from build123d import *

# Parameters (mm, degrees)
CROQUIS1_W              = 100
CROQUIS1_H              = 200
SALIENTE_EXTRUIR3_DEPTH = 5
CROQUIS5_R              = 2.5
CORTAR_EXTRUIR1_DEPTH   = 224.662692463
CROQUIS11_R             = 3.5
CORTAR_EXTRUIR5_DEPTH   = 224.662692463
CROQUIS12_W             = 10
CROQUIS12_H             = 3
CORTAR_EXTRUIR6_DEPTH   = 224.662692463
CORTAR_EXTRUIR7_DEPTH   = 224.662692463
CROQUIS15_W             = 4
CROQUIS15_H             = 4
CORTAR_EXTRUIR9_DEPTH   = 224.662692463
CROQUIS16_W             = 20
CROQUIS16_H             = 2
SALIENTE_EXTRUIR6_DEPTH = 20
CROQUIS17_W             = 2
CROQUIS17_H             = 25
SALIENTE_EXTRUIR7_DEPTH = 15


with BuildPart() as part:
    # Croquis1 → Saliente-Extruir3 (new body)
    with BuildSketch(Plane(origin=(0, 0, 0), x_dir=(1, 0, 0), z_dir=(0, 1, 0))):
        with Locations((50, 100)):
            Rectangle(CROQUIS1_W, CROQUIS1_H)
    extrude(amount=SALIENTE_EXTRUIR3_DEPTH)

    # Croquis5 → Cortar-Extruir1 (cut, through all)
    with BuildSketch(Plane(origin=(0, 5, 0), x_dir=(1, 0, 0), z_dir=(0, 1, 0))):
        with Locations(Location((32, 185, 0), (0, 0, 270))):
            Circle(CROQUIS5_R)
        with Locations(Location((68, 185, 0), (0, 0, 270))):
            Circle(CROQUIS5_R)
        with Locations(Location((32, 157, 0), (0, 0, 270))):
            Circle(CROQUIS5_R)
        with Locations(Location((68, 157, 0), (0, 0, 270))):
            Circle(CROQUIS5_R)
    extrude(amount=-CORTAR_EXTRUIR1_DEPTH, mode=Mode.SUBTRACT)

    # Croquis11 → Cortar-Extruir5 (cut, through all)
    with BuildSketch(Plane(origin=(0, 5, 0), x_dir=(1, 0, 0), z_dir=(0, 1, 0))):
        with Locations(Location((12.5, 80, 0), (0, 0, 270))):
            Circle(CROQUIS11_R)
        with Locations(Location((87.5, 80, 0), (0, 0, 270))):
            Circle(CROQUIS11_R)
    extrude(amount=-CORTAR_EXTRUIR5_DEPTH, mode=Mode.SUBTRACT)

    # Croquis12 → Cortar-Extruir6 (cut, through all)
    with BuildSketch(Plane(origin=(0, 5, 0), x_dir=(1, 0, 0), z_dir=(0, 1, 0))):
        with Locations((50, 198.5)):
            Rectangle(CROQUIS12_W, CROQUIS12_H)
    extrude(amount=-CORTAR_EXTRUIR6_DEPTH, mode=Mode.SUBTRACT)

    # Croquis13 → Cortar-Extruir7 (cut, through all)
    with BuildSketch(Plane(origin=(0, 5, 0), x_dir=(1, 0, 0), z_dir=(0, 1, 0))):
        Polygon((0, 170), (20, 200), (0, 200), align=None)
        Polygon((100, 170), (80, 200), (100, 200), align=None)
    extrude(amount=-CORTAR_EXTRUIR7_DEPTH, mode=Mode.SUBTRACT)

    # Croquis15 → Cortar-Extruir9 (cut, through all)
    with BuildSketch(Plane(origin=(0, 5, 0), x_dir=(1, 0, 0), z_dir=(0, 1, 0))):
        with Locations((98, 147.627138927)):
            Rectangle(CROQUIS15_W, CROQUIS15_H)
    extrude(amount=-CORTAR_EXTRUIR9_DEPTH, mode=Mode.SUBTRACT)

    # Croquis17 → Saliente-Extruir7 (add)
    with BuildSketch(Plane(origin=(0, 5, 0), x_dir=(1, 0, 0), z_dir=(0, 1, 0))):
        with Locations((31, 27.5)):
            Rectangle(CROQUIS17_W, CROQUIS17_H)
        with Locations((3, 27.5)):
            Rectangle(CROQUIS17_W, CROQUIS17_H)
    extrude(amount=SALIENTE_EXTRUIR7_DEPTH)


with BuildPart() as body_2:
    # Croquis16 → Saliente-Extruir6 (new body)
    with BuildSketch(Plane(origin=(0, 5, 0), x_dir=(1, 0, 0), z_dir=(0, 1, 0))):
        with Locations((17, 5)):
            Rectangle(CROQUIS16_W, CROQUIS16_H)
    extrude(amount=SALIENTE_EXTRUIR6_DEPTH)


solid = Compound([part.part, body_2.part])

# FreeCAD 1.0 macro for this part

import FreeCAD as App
import Part
import Sketcher

V = App.Vector
Q = App.Units.Quantity


def add_polygon(sketch, points):
    """Adds a closed chain of lines whose ends are joined by coincident constraints."""
    first, n = sketch.GeometryCount, len(points)
    for a, b in zip(points, points[1:] + points[:1]):
        sketch.addGeometry(Part.LineSegment(App.Vector(*a, 0), App.Vector(*b, 0)), False)
    for i in range(n):
        sketch.addConstraint(Sketcher.Constraint("Coincident", first + i, 2, first + (i + 1) % n, 1))

doc = App.newDocument("Part")
body = doc.addObject("PartDesign::Body", "Body")

# Sketch on XZ plane
sketch1 = body.newObject("Sketcher::SketchObject", "Sketch")
sketch1.AttachmentSupport = (doc.getObject("XZ_Plane"), [""])
sketch1.MapMode = "FlatFace"
add_polygon(sketch1, [(0, -200), (0, 0), (100, 0), (100, -200)])  # lines 0-3
sketch1.addConstraint(Sketcher.Constraint("Vertical", 0))
sketch1.addConstraint(Sketcher.Constraint("Horizontal", 1))
sketch1.addConstraint(Sketcher.Constraint("Vertical", 2))
sketch1.addConstraint(Sketcher.Constraint("Horizontal", 3))
sketch1.addConstraint(Sketcher.Constraint("Coincident", 0, 2, -1, 1))
sketch1.addConstraint(Sketcher.Constraint("DistanceX", 1, 1, 1, 2, Q("100 mm")))
sketch1.addConstraint(Sketcher.Constraint("DistanceY", 0, 1, 0, 2, Q("200 mm")))
pad1 = body.newObject("PartDesign::Pad", "Pad")
pad1.Profile = sketch1
pad1.Length = 5
pad1.Reversed = True

# Sketch on XZ plane
sketch2 = body.newObject("Sketcher::SketchObject", "Sketch001")
sketch2.AttachmentSupport = (doc.getObject("XZ_Plane"), [""])
sketch2.MapMode = "FlatFace"
sketch2.AttachmentOffset = App.Placement(V(0, 0, -5), App.Rotation())
sketch2.addGeometry(Part.Circle(V(32, -185, 0), V(0, 0, 1), 2.5), False)
sketch2.addGeometry(Part.Circle(V(68, -185, 0), V(0, 0, 1), 2.5), False)
sketch2.addGeometry(Part.Circle(V(32, -157, 0), V(0, 0, 1), 2.5), False)
sketch2.addGeometry(Part.Circle(V(68, -157, 0), V(0, 0, 1), 2.5), False)
sketch2.addConstraint(Sketcher.Constraint("Equal", 0, 1))
sketch2.addConstraint(Sketcher.Constraint("Equal", 1, 2))
sketch2.addConstraint(Sketcher.Constraint("Equal", 2, 3))
sketch2.addConstraint(Sketcher.Constraint("Horizontal", 0, 3, 1, 3))
sketch2.addConstraint(Sketcher.Constraint("Horizontal", 2, 3, 3, 3))
sketch2.addConstraint(Sketcher.Constraint("Vertical", 0, 3, 2, 3))
sketch2.addConstraint(Sketcher.Constraint("Vertical", 1, 3, 3, 3))
sketch2.addConstraint(Sketcher.Constraint("Diameter", 0, Q("5 mm")))
sketch2.addConstraint(Sketcher.Constraint("DistanceX", -1, 1, 0, 3, Q("32 mm")))
sketch2.addConstraint(Sketcher.Constraint("DistanceY", 0, 3, -1, 1, Q("185 mm")))
sketch2.addConstraint(Sketcher.Constraint("DistanceX", -1, 1, 1, 3, Q("68 mm")))
sketch2.addConstraint(Sketcher.Constraint("DistanceY", 2, 3, -1, 1, Q("157 mm")))
pocket1 = body.newObject("PartDesign::Pocket", "Pocket")
pocket1.Profile = sketch2
pocket1.Type = "ThroughAll"
pocket1.Reversed = True

# Sketch on XZ plane
sketch3 = body.newObject("Sketcher::SketchObject", "Sketch002")
sketch3.AttachmentSupport = (doc.getObject("XZ_Plane"), [""])
sketch3.MapMode = "FlatFace"
sketch3.AttachmentOffset = App.Placement(V(0, 0, -5), App.Rotation())
sketch3.addGeometry(Part.Circle(V(12.5, -80, 0), V(0, 0, 1), 3.5), False)
sketch3.addGeometry(Part.Circle(V(87.5, -80, 0), V(0, 0, 1), 3.5), False)
sketch3.addConstraint(Sketcher.Constraint("Equal", 0, 1))
sketch3.addConstraint(Sketcher.Constraint("Horizontal", 0, 3, 1, 3))
sketch3.addConstraint(Sketcher.Constraint("Diameter", 0, Q("7 mm")))
sketch3.addConstraint(Sketcher.Constraint("DistanceY", 0, 3, -1, 1, Q("80 mm")))
sketch3.addConstraint(Sketcher.Constraint("DistanceX", 0, 3, 1, 3, Q("75 mm")))
sketch3.addConstraint(Sketcher.Constraint("DistanceX", -1, 1, 0, 3, Q("12.5 mm")))
pocket2 = body.newObject("PartDesign::Pocket", "Pocket001")
pocket2.Profile = sketch3
pocket2.Type = "ThroughAll"
pocket2.Reversed = True

# Sketch on XZ plane
sketch4 = body.newObject("Sketcher::SketchObject", "Sketch003")
sketch4.AttachmentSupport = (doc.getObject("XZ_Plane"), [""])
sketch4.MapMode = "FlatFace"
sketch4.AttachmentOffset = App.Placement(V(0, 0, -5), App.Rotation())
add_polygon(sketch4, [(45, -200), (45, -197), (55, -197), (55, -200)])  # lines 0-3
sketch4.addConstraint(Sketcher.Constraint("Vertical", 0))
sketch4.addConstraint(Sketcher.Constraint("Horizontal", 1))
sketch4.addConstraint(Sketcher.Constraint("Vertical", 2))
sketch4.addConstraint(Sketcher.Constraint("Horizontal", 3))
sketch4.addConstraint(Sketcher.Constraint("DistanceX", 1, 1, 1, 2, Q("10 mm")))
sketch4.addConstraint(Sketcher.Constraint("DistanceY", 0, 1, 0, 2, Q("3 mm")))
sketch4.addConstraint(Sketcher.Constraint("DistanceX", -1, 1, 0, 2, Q("45 mm")))
sketch4.addConstraint(Sketcher.Constraint("DistanceY", 0, 2, -1, 1, Q("197 mm")))
pocket3 = body.newObject("PartDesign::Pocket", "Pocket002")
pocket3.Profile = sketch4
pocket3.Type = "ThroughAll"
pocket3.Reversed = True

# Sketch on XZ plane
sketch5 = body.newObject("Sketcher::SketchObject", "Sketch004")
sketch5.AttachmentSupport = (doc.getObject("XZ_Plane"), [""])
sketch5.MapMode = "FlatFace"
sketch5.AttachmentOffset = App.Placement(V(0, 0, -5), App.Rotation())
add_polygon(sketch5, [(0, -170), (20, -200), (0, -200)])  # lines 0-2
add_polygon(sketch5, [(80, -200), (100, -170), (100, -200)])  # lines 3-5
sketch5.addConstraint(Sketcher.Constraint("Horizontal", 1))
sketch5.addConstraint(Sketcher.Constraint("Vertical", 2))
sketch5.addConstraint(Sketcher.Constraint("Vertical", 4))
sketch5.addConstraint(Sketcher.Constraint("Horizontal", 5))
sketch5.addConstraint(Sketcher.Constraint("PointOnObject", 1, 2, -2))
sketch5.addConstraint(Sketcher.Constraint("Horizontal", 2, 2, 3, 2))
sketch5.addConstraint(Sketcher.Constraint("Horizontal", 1, 2, 4, 2))
sketch5.addConstraint(Sketcher.Constraint("Equal", 1, 5))
sketch5.addConstraint(Sketcher.Constraint("DistanceX", 1, 2, 1, 1, Q("20 mm")))
sketch5.addConstraint(Sketcher.Constraint("DistanceY", 2, 1, 2, 2, Q("30 mm")))
sketch5.addConstraint(Sketcher.Constraint("DistanceY", 0, 2, -1, 1, Q("200 mm")))
sketch5.addConstraint(Sketcher.Constraint("DistanceX", -1, 1, 3, 2, Q("100 mm")))
pocket4 = body.newObject("PartDesign::Pocket", "Pocket003")
pocket4.Profile = sketch5
pocket4.Type = "ThroughAll"
pocket4.Reversed = True

# Sketch on XZ plane
sketch6 = body.newObject("Sketcher::SketchObject", "Sketch005")
sketch6.AttachmentSupport = (doc.getObject("XZ_Plane"), [""])
sketch6.MapMode = "FlatFace"
sketch6.AttachmentOffset = App.Placement(V(0, 0, -5), App.Rotation())
add_polygon(sketch6, [(96, -149.627139), (96, -145.627139), (100, -145.627139), (100, -149.627139)])  # lines 0-3
sketch6.addConstraint(Sketcher.Constraint("Vertical", 0))
sketch6.addConstraint(Sketcher.Constraint("Horizontal", 1))
sketch6.addConstraint(Sketcher.Constraint("Vertical", 2))
sketch6.addConstraint(Sketcher.Constraint("Horizontal", 3))
sketch6.addConstraint(Sketcher.Constraint("Equal", 3, 0))
sketch6.addConstraint(Sketcher.Constraint("DistanceX", 1, 1, 1, 2, Q("4 mm")))
sketch6.addConstraint(Sketcher.Constraint("DistanceX", -1, 1, 0, 2, Q("96 mm")))
sketch6.addConstraint(Sketcher.Constraint("DistanceY", 0, 2, -1, 1, Q("145.627139 mm")))
pocket5 = body.newObject("PartDesign::Pocket", "Pocket004")
pocket5.Profile = sketch6
pocket5.Type = "ThroughAll"
pocket5.Reversed = True

# Sketch on XZ plane
sketch7 = body.newObject("Sketcher::SketchObject", "Sketch006")
sketch7.AttachmentSupport = (doc.getObject("XZ_Plane"), [""])
sketch7.MapMode = "FlatFace"
sketch7.AttachmentOffset = App.Placement(V(0, 0, -5), App.Rotation())
add_polygon(sketch7, [(30, -40), (30, -15), (32, -15), (32, -40)])  # lines 0-3
add_polygon(sketch7, [(2, -40), (2, -15), (4, -15), (4, -40)])  # lines 4-7
sketch7.addConstraint(Sketcher.Constraint("Vertical", 0))
sketch7.addConstraint(Sketcher.Constraint("Horizontal", 1))
sketch7.addConstraint(Sketcher.Constraint("Vertical", 2))
sketch7.addConstraint(Sketcher.Constraint("Horizontal", 3))
sketch7.addConstraint(Sketcher.Constraint("Vertical", 4))
sketch7.addConstraint(Sketcher.Constraint("Horizontal", 5))
sketch7.addConstraint(Sketcher.Constraint("Vertical", 6))
sketch7.addConstraint(Sketcher.Constraint("Horizontal", 7))
sketch7.addConstraint(Sketcher.Constraint("Horizontal", 1, 2, 4, 2))
sketch7.addConstraint(Sketcher.Constraint("Horizontal", 3, 2, 6, 2))
sketch7.addConstraint(Sketcher.Constraint("Equal", 3, 5))
sketch7.addConstraint(Sketcher.Constraint("DistanceX", 1, 1, 1, 2, Q("2 mm")))
sketch7.addConstraint(Sketcher.Constraint("DistanceY", 0, 1, 0, 2, Q("25 mm")))
sketch7.addConstraint(Sketcher.Constraint("DistanceX", -1, 1, 0, 2, Q("30 mm")))
sketch7.addConstraint(Sketcher.Constraint("DistanceY", 0, 2, -1, 1, Q("15 mm")))
sketch7.addConstraint(Sketcher.Constraint("DistanceX", -1, 1, 4, 2, Q("2 mm")))
pad2 = body.newObject("PartDesign::Pad", "Pad001")
pad2.Profile = sketch7
pad2.Length = 15
pad2.Reversed = True
body2 = doc.addObject("PartDesign::Body", "Body001")

# Sketch on XZ plane
sketch8 = body2.newObject("Sketcher::SketchObject", "Sketch007")
sketch8.AttachmentSupport = (doc.getObject("XZ_Plane001"), [""])
sketch8.MapMode = "FlatFace"
sketch8.AttachmentOffset = App.Placement(V(0, 0, -5), App.Rotation())
add_polygon(sketch8, [(7, -6), (7, -4), (27, -4), (27, -6)])  # lines 0-3
sketch8.addConstraint(Sketcher.Constraint("Vertical", 0))
sketch8.addConstraint(Sketcher.Constraint("Horizontal", 1))
sketch8.addConstraint(Sketcher.Constraint("Vertical", 2))
sketch8.addConstraint(Sketcher.Constraint("Horizontal", 3))
sketch8.addConstraint(Sketcher.Constraint("DistanceX", 1, 1, 1, 2, Q("20 mm")))
sketch8.addConstraint(Sketcher.Constraint("DistanceY", 0, 1, 0, 2, Q("2 mm")))
sketch8.addConstraint(Sketcher.Constraint("DistanceX", -1, 1, 0, 2, Q("7 mm")))
sketch8.addConstraint(Sketcher.Constraint("DistanceY", 0, 2, -1, 1, Q("4 mm")))
pad3 = body2.newObject("PartDesign::Pad", "Pad002")
pad3.Profile = sketch8
pad3.Length = 20
pad3.Reversed = True

doc.recompute()
